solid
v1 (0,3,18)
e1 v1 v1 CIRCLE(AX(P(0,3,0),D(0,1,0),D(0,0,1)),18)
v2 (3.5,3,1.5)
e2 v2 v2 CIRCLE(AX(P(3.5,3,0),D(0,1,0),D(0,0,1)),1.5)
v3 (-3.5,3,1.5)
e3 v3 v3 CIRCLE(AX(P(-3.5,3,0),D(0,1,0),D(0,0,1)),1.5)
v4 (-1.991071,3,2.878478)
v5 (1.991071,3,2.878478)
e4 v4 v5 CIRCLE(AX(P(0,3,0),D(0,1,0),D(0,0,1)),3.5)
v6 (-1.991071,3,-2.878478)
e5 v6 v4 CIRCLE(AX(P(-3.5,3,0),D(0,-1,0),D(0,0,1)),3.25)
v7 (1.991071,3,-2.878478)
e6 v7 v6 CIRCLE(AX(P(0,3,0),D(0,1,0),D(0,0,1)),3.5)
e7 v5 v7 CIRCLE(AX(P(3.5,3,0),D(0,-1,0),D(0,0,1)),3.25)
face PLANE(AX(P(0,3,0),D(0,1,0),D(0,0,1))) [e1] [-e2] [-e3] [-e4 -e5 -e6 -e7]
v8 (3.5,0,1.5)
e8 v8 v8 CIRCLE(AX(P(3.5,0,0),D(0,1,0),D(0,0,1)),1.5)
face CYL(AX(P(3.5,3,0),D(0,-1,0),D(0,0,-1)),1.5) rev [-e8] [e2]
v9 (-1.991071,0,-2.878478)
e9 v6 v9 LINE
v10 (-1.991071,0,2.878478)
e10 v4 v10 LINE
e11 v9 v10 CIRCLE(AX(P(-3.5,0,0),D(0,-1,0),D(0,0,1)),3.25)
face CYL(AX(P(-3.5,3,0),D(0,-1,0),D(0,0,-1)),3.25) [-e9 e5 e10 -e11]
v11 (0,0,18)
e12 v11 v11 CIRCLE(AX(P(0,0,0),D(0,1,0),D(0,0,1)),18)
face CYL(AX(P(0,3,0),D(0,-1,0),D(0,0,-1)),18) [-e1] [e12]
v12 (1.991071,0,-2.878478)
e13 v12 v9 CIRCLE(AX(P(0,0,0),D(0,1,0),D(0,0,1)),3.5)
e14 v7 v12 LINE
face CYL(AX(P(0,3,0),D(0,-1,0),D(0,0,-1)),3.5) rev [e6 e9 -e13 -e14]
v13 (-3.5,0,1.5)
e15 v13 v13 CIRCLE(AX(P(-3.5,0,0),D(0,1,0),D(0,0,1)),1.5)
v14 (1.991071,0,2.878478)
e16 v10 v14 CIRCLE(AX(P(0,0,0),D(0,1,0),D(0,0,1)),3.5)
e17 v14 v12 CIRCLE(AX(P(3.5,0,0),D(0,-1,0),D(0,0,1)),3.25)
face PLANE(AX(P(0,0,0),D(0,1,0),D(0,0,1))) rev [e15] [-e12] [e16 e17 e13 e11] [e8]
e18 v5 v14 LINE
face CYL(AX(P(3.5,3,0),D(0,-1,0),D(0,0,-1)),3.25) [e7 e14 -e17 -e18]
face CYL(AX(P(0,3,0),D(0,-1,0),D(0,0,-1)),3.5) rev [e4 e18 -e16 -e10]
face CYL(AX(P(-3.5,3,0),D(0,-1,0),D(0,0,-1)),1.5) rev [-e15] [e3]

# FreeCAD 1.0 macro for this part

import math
import FreeCAD as App
import Part
import Sketcher

V = App.Vector
Q = App.Units.Quantity

doc = App.newDocument("Part")
body = doc.addObject("PartDesign::Body", "Body")

# Sketch on XZ plane
sketch1 = body.newObject("Sketcher::SketchObject", "Sketch")
sketch1.AttachmentSupport = (doc.getObject("XZ_Plane"), [""])
sketch1.MapMode = "FlatFace"
sketch1.addGeometry([
    Part.Circle(V(0, 0, 0), V(0, 0, 1), 18),  # 0
    Part.Circle(V(-3.5, 0, 0), V(0, 0, 1), 1.5),  # 1
    Part.ArcOfCircle(Part.Circle(V(0, 0, 0), V(0, 0, 1), 3.5), math.radians(-124.671991), math.radians(-55.328009)),  # 2
    Part.ArcOfCircle(Part.Circle(V(3.5, 0, 0), V(0, 0, 1), 3.25), math.radians(117.664004), math.radians(242.335996)),  # 3
    Part.ArcOfCircle(Part.Circle(V(0, 0, 0), V(0, 0, 1), 3.5), math.radians(55.328009), math.radians(124.671991)),  # 4
    Part.ArcOfCircle(Part.Circle(V(-3.5, 0, 0), V(0, 0, 1), 3.25), math.radians(-62.335996), math.radians(62.335996)),  # 5
    Part.Circle(V(3.5, 0, 0), V(0, 0, 1), 1.5),  # 6
], False)
sketch1.addConstraint([
    Sketcher.Constraint("Coincident", 2, 2, 3, 2),
    Sketcher.Constraint("Coincident", 3, 1, 4, 1),
    Sketcher.Constraint("Coincident", 4, 2, 5, 2),
    Sketcher.Constraint("Coincident", 5, 1, 2, 1),
    Sketcher.Constraint("Coincident", 0, 3, -1, 1),
    Sketcher.Constraint("Coincident", 2, 3, -1, 1),
    Sketcher.Constraint("Coincident", 4, 3, -1, 1),
    Sketcher.Constraint("Coincident", 5, 3, 1, 3),
    Sketcher.Constraint("Coincident", 6, 3, 3, 3),
    Sketcher.Constraint("Equal", 2, 4),
    Sketcher.Constraint("Equal", 3, 5),
    Sketcher.Constraint("Equal", 1, 6),
    Sketcher.Constraint("Symmetric", 1, 3, 3, 3, -1, 1),
    Sketcher.Constraint("PointOnObject", 1, 3, -1),
    Sketcher.Constraint("Diameter", 0, Q("36 mm")),
    Sketcher.Constraint("Diameter", 1, Q("3 mm")),
    Sketcher.Constraint("Radius", 2, Q("3.5 mm")),
    Sketcher.Constraint("Radius", 3, Q("3.25 mm")),
    Sketcher.Constraint("DistanceX", 1, 3, 3, 3, Q("7 mm")),
])
pad1 = body.newObject("PartDesign::Pad", "Pad")
pad1.Profile = sketch1
pad1.Length = 3
pad1.Reversed = True

doc.recompute()
